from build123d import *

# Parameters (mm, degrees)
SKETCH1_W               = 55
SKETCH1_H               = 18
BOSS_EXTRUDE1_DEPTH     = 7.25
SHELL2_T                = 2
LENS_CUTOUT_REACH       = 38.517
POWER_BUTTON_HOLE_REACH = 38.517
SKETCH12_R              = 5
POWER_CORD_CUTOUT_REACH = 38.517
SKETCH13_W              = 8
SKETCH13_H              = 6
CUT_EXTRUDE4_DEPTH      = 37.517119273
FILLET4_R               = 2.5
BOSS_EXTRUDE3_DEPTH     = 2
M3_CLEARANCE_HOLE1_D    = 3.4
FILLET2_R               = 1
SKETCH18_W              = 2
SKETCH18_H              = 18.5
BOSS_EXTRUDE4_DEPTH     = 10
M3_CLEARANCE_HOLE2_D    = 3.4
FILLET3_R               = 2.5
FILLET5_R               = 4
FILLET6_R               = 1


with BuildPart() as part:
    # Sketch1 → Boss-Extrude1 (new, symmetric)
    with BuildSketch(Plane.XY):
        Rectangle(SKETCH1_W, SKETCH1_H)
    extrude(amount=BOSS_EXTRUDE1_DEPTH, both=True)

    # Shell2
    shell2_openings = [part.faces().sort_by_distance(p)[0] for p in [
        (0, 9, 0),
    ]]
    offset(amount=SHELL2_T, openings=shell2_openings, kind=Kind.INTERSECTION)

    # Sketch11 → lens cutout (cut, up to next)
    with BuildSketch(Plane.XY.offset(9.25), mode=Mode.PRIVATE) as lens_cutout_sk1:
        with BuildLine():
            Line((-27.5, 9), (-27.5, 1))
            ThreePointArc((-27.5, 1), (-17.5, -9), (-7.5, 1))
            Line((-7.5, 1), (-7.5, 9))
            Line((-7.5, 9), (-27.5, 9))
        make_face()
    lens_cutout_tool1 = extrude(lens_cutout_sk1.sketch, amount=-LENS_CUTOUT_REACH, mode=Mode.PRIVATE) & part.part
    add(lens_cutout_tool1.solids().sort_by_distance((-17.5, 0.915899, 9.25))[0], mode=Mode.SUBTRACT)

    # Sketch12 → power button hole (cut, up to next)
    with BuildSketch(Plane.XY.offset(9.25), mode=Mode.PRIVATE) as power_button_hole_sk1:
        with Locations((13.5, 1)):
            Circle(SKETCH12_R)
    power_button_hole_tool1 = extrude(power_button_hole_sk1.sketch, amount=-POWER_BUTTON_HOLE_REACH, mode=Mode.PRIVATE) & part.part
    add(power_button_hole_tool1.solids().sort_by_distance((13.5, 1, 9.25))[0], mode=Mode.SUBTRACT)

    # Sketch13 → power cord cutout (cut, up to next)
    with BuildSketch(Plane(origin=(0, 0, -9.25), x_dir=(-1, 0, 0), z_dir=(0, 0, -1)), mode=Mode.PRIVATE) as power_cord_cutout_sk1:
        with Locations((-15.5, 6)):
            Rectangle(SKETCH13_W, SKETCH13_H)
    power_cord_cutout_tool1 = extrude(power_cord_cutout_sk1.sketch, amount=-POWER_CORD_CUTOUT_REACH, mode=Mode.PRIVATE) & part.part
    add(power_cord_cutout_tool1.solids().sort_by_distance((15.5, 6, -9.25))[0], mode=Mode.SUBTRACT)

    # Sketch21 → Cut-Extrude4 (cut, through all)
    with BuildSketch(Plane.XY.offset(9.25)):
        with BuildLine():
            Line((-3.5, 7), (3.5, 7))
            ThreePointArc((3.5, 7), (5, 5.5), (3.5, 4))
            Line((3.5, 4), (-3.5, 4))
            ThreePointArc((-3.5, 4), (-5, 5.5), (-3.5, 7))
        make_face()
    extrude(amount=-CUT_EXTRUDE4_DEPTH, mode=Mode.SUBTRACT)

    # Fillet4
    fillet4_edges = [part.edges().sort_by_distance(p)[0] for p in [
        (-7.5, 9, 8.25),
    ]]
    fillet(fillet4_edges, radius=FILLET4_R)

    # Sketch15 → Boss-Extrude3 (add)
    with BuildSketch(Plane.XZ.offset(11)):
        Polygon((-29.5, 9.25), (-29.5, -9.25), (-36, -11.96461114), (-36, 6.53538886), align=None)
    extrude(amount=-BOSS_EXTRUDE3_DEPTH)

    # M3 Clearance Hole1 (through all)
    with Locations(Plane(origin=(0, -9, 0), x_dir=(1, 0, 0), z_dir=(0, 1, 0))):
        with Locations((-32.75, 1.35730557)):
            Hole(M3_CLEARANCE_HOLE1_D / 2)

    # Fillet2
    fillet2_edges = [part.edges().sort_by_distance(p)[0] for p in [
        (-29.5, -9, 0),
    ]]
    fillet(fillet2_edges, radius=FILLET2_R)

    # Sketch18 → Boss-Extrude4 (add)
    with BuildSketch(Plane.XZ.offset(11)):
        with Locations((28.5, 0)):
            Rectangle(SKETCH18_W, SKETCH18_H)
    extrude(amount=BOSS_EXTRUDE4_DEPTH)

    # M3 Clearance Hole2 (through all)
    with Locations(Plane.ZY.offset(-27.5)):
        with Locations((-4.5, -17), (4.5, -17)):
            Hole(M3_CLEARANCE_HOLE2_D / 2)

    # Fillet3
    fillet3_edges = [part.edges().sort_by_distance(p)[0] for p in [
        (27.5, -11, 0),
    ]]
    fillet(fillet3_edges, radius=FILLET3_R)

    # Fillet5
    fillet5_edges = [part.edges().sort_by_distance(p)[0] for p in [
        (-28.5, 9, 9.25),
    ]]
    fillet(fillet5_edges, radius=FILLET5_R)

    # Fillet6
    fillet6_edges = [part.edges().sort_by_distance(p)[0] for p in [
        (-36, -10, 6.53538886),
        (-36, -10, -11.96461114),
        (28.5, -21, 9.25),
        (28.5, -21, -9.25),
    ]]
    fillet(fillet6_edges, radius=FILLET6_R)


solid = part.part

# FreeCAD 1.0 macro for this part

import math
import FreeCAD as App
import Part
import Sketcher
from FreeCAD import Vector
Q = App.Units.Quantity


def edges_at(feature, points):
    """Names of the edges that pass closest to the given points."""
    edges = feature.Shape.Edges
    near = lambda p: min(range(len(edges)), key=lambda i: edges[i].distToShape(Part.Vertex(*p))[0])
    return sorted({f"Edge{near(p) + 1}" for p in points})


def faces_at(feature, points):
    """Names of the faces that lie closest to the given points."""
    faces = feature.Shape.Faces
    near = lambda p: min(range(len(faces)), key=lambda i: faces[i].distToShape(Part.Vertex(*p))[0])
    return sorted({f"Face{near(p) + 1}" for p in points})

doc = App.newDocument("Part")
params = doc.addObject("Spreadsheet::Sheet", "Params")
for row, (alias, value) in enumerate([
    ("sketch1_width", "55 mm"),
    ("sketch1_height", "18 mm"),
    ("pad1_length", "14.5 mm"),
    ("thickness_wall", "2 mm"),
    ("sketch2_radius", "10 mm"),
    ("sketch2_height", "8 mm"),
    ("sketch3_diameter", "10 mm"),
    ("sketch4_width", "8 mm"),
    ("sketch4_height", "6 mm"),
    ("sketch5_radius", "1.5 mm"),
    ("sketch5_width", "7 mm"),
    ("fillet_radius", "2.5 mm"),
    ("sketch6_height", "18.5 mm"),
    ("pad2_length", "2 mm"),
    ("sketch7_diameter", "3.4 mm"),
    ("hole_diameter", "3.4 mm"),
    ("fillet2_radius", "1 mm"),
    ("sketch8_width", "2 mm"),
    ("sketch8_height", "18.5 mm"),
    ("pad3_length", "10 mm"),
    ("sketch9_diameter", "3.4 mm"),
    ("hole2_diameter", "3.4 mm"),
    ("fillet3_radius", "2.5 mm"),
    ("fillet4_radius", "4 mm"),
    ("fillet5_radius", "1 mm"),
], start=1):
    params.set(f"A{row}", alias)
    params.set(f"B{row}", "=" + value)
    params.setAlias(f"B{row}", alias)

body = doc.addObject("PartDesign::Body", "Body")

sketch1 = body.newObject("Sketcher::SketchObject", "Sketch")
sketch1.AttachmentSupport = (doc.getObject("XY_Plane"), [""])
sketch1.MapMode = "FlatFace"
sketch1.addGeometry([
    Part.LineSegment(Vector(-28, 9, 0), Vector(-28, -9, 0)),
    Part.LineSegment(Vector(-28, -9, 0), Vector(28, -9, 0)),
    Part.LineSegment(Vector(28, -9, 0), Vector(28, 9, 0)),
    Part.LineSegment(Vector(28, 9, 0), Vector(-28, 9, 0)),
], False)
sketch1.addConstraint([
    Sketcher.Constraint("Coincident", 0, 2, 1, 1),
    Sketcher.Constraint("Coincident", 1, 2, 2, 1),
    Sketcher.Constraint("Coincident", 2, 2, 3, 1),
    Sketcher.Constraint("Coincident", 3, 2, 0, 1),
    Sketcher.Constraint("Vertical", 0),
    Sketcher.Constraint("Horizontal", 1),
    Sketcher.Constraint("Vertical", 2),
    Sketcher.Constraint("Horizontal", 3),
    Sketcher.Constraint("Symmetric", 0, 2, 2, 2, -1, 1),
    Sketcher.Constraint("DistanceX", 1, 1, 1, 2, Q("55 mm")),
    Sketcher.Constraint("DistanceY", 0, 2, 0, 1, Q("18 mm")),
])
sketch1.setExpression("Constraints[9]", "Params.sketch1_width")
sketch1.setExpression("Constraints[10]", "Params.sketch1_height")
pad1 = body.newObject("PartDesign::Pad", "Pad")
pad1.Profile = sketch1
pad1.setExpression("Length", "Params.pad1_length")
pad1.Midplane = True
doc.recompute()

thickness = body.newObject("PartDesign::Thickness", "Thickness")
thickness.Base = (pad1, faces_at(pad1, [(0, 9, 0)]))
thickness.setExpression("Value", "Params.thickness_wall")
thickness.Reversed = False
thickness.Join = "Intersection"

sketch2 = body.newObject("Sketcher::SketchObject", "Sketch001")
sketch2.AttachmentSupport = (doc.getObject("XY_Plane"), [""])
sketch2.MapMode = "FlatFace"
sketch2.AttachmentOffset = App.Placement(Vector(0, 0, 9.25), App.Rotation())
sketch2.addGeometry([
    Part.LineSegment(Vector(-28, 9, 0), Vector(-28, 1, 0)),
    Part.ArcOfCircle(Part.Circle(Vector(-18, 1, 0), Vector(0, 0, 1), 10), math.radians(180), math.radians(360)),
    Part.LineSegment(Vector(-8, 1, 0), Vector(-8, 9, 0)),
    Part.LineSegment(Vector(-8, 9, 0), Vector(-28, 9, 0)),
], False)
sketch2.addConstraint([
    Sketcher.Constraint("Tangent", 0, 2, 1, 1),
    Sketcher.Constraint("Tangent", 1, 2, 2, 1),
    Sketcher.Constraint("Coincident", 2, 2, 3, 1),
    Sketcher.Constraint("Coincident", 3, 2, 0, 1),
    Sketcher.Constraint("Vertical", 0),
    Sketcher.Constraint("Vertical", 2),
    Sketcher.Constraint("Horizontal", 3),
    Sketcher.Constraint("Radius", 1, Q("10 mm")),
    Sketcher.Constraint("DistanceY", 0, 2, 0, 1, Q("8 mm")),
    Sketcher.Constraint("DistanceY", -1, 1, 1, 3, Q("1 mm")),
    Sketcher.Constraint("DistanceX", 1, 3, -1, 1, Q("17.5 mm")),
])
sketch2.setExpression("Constraints[7]", "Params.sketch2_radius")
sketch2.setExpression("Constraints[8]", "Params.sketch2_height")
pocket1 = body.newObject("PartDesign::Pocket", "Pocket")
pocket1.Profile = sketch2
pocket1.Type = "UpToFirst"

sketch3 = body.newObject("Sketcher::SketchObject", "Sketch002")
sketch3.AttachmentSupport = (doc.getObject("XY_Plane"), [""])
sketch3.MapMode = "FlatFace"
sketch3.AttachmentOffset = App.Placement(Vector(0, 0, 9.25), App.Rotation())
sketch3.addGeometry(Part.Circle(Vector(14, 1, 0), Vector(0, 0, 1), 5), False)
sketch3.addConstraint([
    Sketcher.Constraint("Diameter", 0, Q("10 mm")),
    Sketcher.Constraint("DistanceY", -1, 1, 0, 3, Q("1 mm")),
    Sketcher.Constraint("DistanceX", -1, 1, 0, 3, Q("13.5 mm")),
])
sketch3.setExpression("Constraints[0]", "Params.sketch3_diameter")
pocket2 = body.newObject("PartDesign::Pocket", "Pocket001")
pocket2.Profile = sketch3
pocket2.Type = "UpToFirst"

sketch4 = body.newObject("Sketcher::SketchObject", "Sketch003")
sketch4.AttachmentSupport = (doc.getObject("XY_Plane"), [""])
sketch4.MapMode = "FlatFace"
sketch4.AttachmentOffset = App.Placement(Vector(0, 0, -9.25), App.Rotation())
sketch4.addGeometry([
    Part.LineSegment(Vector(20, 9, 0), Vector(20, 3, 0)),
    Part.LineSegment(Vector(20, 3, 0), Vector(12, 3, 0)),
    Part.LineSegment(Vector(12, 3, 0), Vector(12, 9, 0)),
    Part.LineSegment(Vector(12, 9, 0), Vector(20, 9, 0)),
], False)
sketch4.addConstraint([
    Sketcher.Constraint("Coincident", 0, 2, 1, 1),
    Sketcher.Constraint("Coincident", 1, 2, 2, 1),
    Sketcher.Constraint("Coincident", 2, 2, 3, 1),
    Sketcher.Constraint("Coincident", 3, 2, 0, 1),
    Sketcher.Constraint("Vertical", 0),
    Sketcher.Constraint("Horizontal", 1),
    Sketcher.Constraint("Vertical", 2),
    Sketcher.Constraint("Horizontal", 3),
    Sketcher.Constraint("DistanceX", 1, 2, 1, 1, Q("8 mm")),
    Sketcher.Constraint("DistanceY", 0, 2, 0, 1, Q("6 mm")),
    Sketcher.Constraint("DistanceY", -1, 1, 0, 2, Q("3 mm")),
    Sketcher.Constraint("DistanceX", -1, 1, 0, 2, Q("19.5 mm")),
])
sketch4.setExpression("Constraints[8]", "Params.sketch4_width")
sketch4.setExpression("Constraints[9]", "Params.sketch4_height")
pocket3 = body.newObject("PartDesign::Pocket", "Pocket002")
pocket3.Profile = sketch4
pocket3.Type = "UpToFirst"
pocket3.Reversed = True

sketch5 = body.newObject("Sketcher::SketchObject", "Sketch004")
sketch5.AttachmentSupport = (doc.getObject("XY_Plane"), [""])
sketch5.MapMode = "FlatFace"
sketch5.AttachmentOffset = App.Placement(Vector(0, 0, 9.25), App.Rotation())
sketch5.addGeometry([
    Part.LineSegment(Vector(3.5, 7, 0), Vector(-3.5, 7, 0)),
    Part.ArcOfCircle(Part.Circle(Vector(-3.5, 5.5, 0), Vector(0, 0, 1), 1.5), math.radians(90), math.radians(270)),
    Part.LineSegment(Vector(-3.5, 4, 0), Vector(3.5, 4, 0)),
    Part.ArcOfCircle(Part.Circle(Vector(3.5, 5.5, 0), Vector(0, 0, 1), 1.5), math.radians(-90), math.radians(90)),
], False)
sketch5.addConstraint([
    Sketcher.Constraint("Tangent", 0, 2, 1, 1),
    Sketcher.Constraint("Tangent", 1, 2, 2, 1),
    Sketcher.Constraint("Tangent", 2, 2, 3, 1),
    Sketcher.Constraint("Tangent", 3, 2, 0, 1),
    Sketcher.Constraint("Horizontal", 0),
    Sketcher.Constraint("Horizontal", 2),
    Sketcher.Constraint("Radius", 1, Q("1.5 mm")),
    Sketcher.Constraint("DistanceX", 0, 2, 0, 1, Q("7 mm")),
    Sketcher.Constraint("DistanceY", -1, 1, 0, 2, Q("7 mm")),
    Sketcher.Constraint("DistanceX", 1, 3, -1, 1, Q("3.5 mm")),
])
sketch5.setExpression("Constraints[6]", "Params.sketch5_radius")
sketch5.setExpression("Constraints[7]", "Params.sketch5_width")
pocket4 = body.newObject("PartDesign::Pocket", "Pocket003")
pocket4.Profile = sketch5
pocket4.Type = "ThroughAll"
doc.recompute()

fillet = body.newObject("PartDesign::Fillet", "Fillet")
fillet.Base = (pocket4, edges_at(pocket4, [(-7.5, 9, 8.25)]))
fillet.setExpression("Radius", "Params.fillet_radius")

sketch6 = body.newObject("Sketcher::SketchObject", "Sketch005")
sketch6.AttachmentSupport = (doc.getObject("XZ_Plane"), [""])
sketch6.MapMode = "FlatFace"
sketch6.AttachmentOffset = App.Placement(Vector(0, 0, 11), App.Rotation())
sketch6.addGeometry([
    Part.LineSegment(Vector(-30, -9, 0), Vector(-30, 9, 0)),
    Part.LineSegment(Vector(-30, 9, 0), Vector(-36, 7, 0)),
    Part.LineSegment(Vector(-36, 7, 0), Vector(-36, -12, 0)),
    Part.LineSegment(Vector(-36, -12, 0), Vector(-30, -9, 0)),
], False)
sketch6.addConstraint([
    Sketcher.Constraint("Coincident", 0, 2, 1, 1),
    Sketcher.Constraint("Coincident", 1, 2, 2, 1),
    Sketcher.Constraint("Coincident", 2, 2, 3, 1),
    Sketcher.Constraint("Coincident", 3, 2, 0, 1),
    Sketcher.Constraint("Vertical", 0),
    Sketcher.Constraint("Vertical", 2),
    Sketcher.Constraint("Parallel", 1, 3),
    Sketcher.Constraint("DistanceY", 0, 1, 0, 2, Q("18.5 mm")),
    Sketcher.Constraint("DistanceX", 1, 2, -1, 1, Q("36 mm")),
    Sketcher.Constraint("DistanceX", 0, 2, -1, 1, Q("29.5 mm")),
    Sketcher.Constraint("DistanceY", -1, 1, 0, 2, Q("9.25 mm")),
    Sketcher.Constraint("DistanceY", -1, 1, 1, 2, Q("6.535389 mm")),
])
sketch6.setExpression("Constraints[7]", "Params.sketch6_height")
pad2 = body.newObject("PartDesign::Pad", "Pad001")
pad2.Profile = sketch6
pad2.setExpression("Length", "Params.pad2_length")
pad2.Reversed = True

sketch7 = body.newObject("Sketcher::SketchObject", "Sketch006")
sketch7.AttachmentSupport = (doc.getObject("XZ_Plane"), [""])
sketch7.MapMode = "FlatFace"
sketch7.AttachmentOffset = App.Placement(Vector(0, 0, 9), App.Rotation())
sketch7.addGeometry(Part.Circle(Vector(-32.8, -1.4, 0), Vector(0, 0, 1), 1.7), False)
sketch7.addConstraint([
    Sketcher.Constraint("Diameter", 0, Q("3.4 mm")),
    Sketcher.Constraint("DistanceX", 0, 3, -1, 1, Q("32.75 mm")),
    Sketcher.Constraint("DistanceY", 0, 3, -1, 1, Q("1.357306 mm")),
])
sketch7.setExpression("Constraints[0]", "Params.sketch7_diameter")
doc.recompute()
hole = body.newObject("PartDesign::Hole", "Hole")
hole.Profile = sketch7
hole.ThreadType = "None"
hole.setExpression("Diameter", "Params.hole_diameter")
hole.DepthType = "ThroughAll"
hole.Reversed = True
doc.recompute()

fillet2 = body.newObject("PartDesign::Fillet", "Fillet001")
fillet2.Base = (hole, edges_at(hole, [(-29.5, -9, 0)]))
fillet2.setExpression("Radius", "Params.fillet2_radius")

sketch8 = body.newObject("Sketcher::SketchObject", "Sketch007")
sketch8.AttachmentSupport = (doc.getObject("XZ_Plane"), [""])
sketch8.MapMode = "FlatFace"
sketch8.AttachmentOffset = App.Placement(Vector(0, 0, 11), App.Rotation())
sketch8.addGeometry([
    Part.LineSegment(Vector(27.5, 9.2, 0), Vector(27.5, -9.2, 0)),
    Part.LineSegment(Vector(27.5, -9.2, 0), Vector(29.5, -9.2, 0)),
    Part.LineSegment(Vector(29.5, -9.2, 0), Vector(29.5, 9.2, 0)),
    Part.LineSegment(Vector(29.5, 9.2, 0), Vector(27.5, 9.2, 0)),
], False)
sketch8.addConstraint([
    Sketcher.Constraint("Coincident", 0, 2, 1, 1),
    Sketcher.Constraint("Coincident", 1, 2, 2, 1),
    Sketcher.Constraint("Coincident", 2, 2, 3, 1),
    Sketcher.Constraint("Coincident", 3, 2, 0, 1),
    Sketcher.Constraint("Vertical", 0),
    Sketcher.Constraint("Horizontal", 1),
    Sketcher.Constraint("Vertical", 2),
    Sketcher.Constraint("Horizontal", 3),
    Sketcher.Constraint("DistanceX", 1, 1, 1, 2, Q("2 mm")),
    Sketcher.Constraint("DistanceY", 0, 2, 0, 1, Q("18.5 mm")),
    Sketcher.Constraint("DistanceX", -1, 1, 0, 2, Q("27.5 mm")),
    Sketcher.Constraint("DistanceY", 0, 2, -1, 1, Q("9.25 mm")),
])
sketch8.setExpression("Constraints[8]", "Params.sketch8_width")
sketch8.setExpression("Constraints[9]", "Params.sketch8_height")
pad3 = body.newObject("PartDesign::Pad", "Pad002")
pad3.Profile = sketch8
pad3.setExpression("Length", "Params.pad3_length")

sketch9 = body.newObject("Sketcher::SketchObject", "Sketch008")
sketch9.AttachmentSupport = (doc.getObject("YZ_Plane"), [""])
sketch9.MapMode = "FlatFace"
sketch9.AttachmentOffset = App.Placement(Vector(0, 0, 27.5), App.Rotation())
sketch9.addGeometry([
    Part.Circle(Vector(-17, -4.5, 0), Vector(0, 0, 1), 1.7),
    Part.Circle(Vector(-17, 4.5, 0), Vector(0, 0, 1), 1.7),
], False)
sketch9.addConstraint([
    Sketcher.Constraint("Equal", 0, 1),
    Sketcher.Constraint("Symmetric", 0, 3, 1, 3, -1),
    Sketcher.Constraint("Diameter", 0, Q("3.4 mm")),
    Sketcher.Constraint("DistanceX", 0, 3, -1, 1, Q("17 mm")),
    Sketcher.Constraint("DistanceY", 0, 3, 1, 3, Q("9 mm")),
])
sketch9.setExpression("Constraints[2]", "Params.sketch9_diameter")
doc.recompute()
hole2 = body.newObject("PartDesign::Hole", "Hole001")
hole2.Profile = sketch9
hole2.ThreadType = "None"
hole2.setExpression("Diameter", "Params.hole2_diameter")
hole2.DepthType = "ThroughAll"
hole2.Reversed = True
doc.recompute()

fillet3 = body.newObject("PartDesign::Fillet", "Fillet002")
fillet3.Base = (hole2, edges_at(hole2, [(27.5, -11, 0)]))
fillet3.setExpression("Radius", "Params.fillet3_radius")
doc.recompute()

fillet4 = body.newObject("PartDesign::Fillet", "Fillet003")
fillet4.Base = (fillet3, edges_at(fillet3, [(-28.5, 9, 9.25)]))
fillet4.setExpression("Radius", "Params.fillet4_radius")
doc.recompute()

fillet5 = body.newObject("PartDesign::Fillet", "Fillet004")
fillet5.Base = (fillet4, edges_at(fillet4, [
    (-36, -10, 6.535),
    (-36, -10, -11.965),
    (28.5, -21, 9.25),
    (28.5, -21, -9.25),
]))
fillet5.setExpression("Radius", "Params.fillet5_radius")

doc.recompute()
